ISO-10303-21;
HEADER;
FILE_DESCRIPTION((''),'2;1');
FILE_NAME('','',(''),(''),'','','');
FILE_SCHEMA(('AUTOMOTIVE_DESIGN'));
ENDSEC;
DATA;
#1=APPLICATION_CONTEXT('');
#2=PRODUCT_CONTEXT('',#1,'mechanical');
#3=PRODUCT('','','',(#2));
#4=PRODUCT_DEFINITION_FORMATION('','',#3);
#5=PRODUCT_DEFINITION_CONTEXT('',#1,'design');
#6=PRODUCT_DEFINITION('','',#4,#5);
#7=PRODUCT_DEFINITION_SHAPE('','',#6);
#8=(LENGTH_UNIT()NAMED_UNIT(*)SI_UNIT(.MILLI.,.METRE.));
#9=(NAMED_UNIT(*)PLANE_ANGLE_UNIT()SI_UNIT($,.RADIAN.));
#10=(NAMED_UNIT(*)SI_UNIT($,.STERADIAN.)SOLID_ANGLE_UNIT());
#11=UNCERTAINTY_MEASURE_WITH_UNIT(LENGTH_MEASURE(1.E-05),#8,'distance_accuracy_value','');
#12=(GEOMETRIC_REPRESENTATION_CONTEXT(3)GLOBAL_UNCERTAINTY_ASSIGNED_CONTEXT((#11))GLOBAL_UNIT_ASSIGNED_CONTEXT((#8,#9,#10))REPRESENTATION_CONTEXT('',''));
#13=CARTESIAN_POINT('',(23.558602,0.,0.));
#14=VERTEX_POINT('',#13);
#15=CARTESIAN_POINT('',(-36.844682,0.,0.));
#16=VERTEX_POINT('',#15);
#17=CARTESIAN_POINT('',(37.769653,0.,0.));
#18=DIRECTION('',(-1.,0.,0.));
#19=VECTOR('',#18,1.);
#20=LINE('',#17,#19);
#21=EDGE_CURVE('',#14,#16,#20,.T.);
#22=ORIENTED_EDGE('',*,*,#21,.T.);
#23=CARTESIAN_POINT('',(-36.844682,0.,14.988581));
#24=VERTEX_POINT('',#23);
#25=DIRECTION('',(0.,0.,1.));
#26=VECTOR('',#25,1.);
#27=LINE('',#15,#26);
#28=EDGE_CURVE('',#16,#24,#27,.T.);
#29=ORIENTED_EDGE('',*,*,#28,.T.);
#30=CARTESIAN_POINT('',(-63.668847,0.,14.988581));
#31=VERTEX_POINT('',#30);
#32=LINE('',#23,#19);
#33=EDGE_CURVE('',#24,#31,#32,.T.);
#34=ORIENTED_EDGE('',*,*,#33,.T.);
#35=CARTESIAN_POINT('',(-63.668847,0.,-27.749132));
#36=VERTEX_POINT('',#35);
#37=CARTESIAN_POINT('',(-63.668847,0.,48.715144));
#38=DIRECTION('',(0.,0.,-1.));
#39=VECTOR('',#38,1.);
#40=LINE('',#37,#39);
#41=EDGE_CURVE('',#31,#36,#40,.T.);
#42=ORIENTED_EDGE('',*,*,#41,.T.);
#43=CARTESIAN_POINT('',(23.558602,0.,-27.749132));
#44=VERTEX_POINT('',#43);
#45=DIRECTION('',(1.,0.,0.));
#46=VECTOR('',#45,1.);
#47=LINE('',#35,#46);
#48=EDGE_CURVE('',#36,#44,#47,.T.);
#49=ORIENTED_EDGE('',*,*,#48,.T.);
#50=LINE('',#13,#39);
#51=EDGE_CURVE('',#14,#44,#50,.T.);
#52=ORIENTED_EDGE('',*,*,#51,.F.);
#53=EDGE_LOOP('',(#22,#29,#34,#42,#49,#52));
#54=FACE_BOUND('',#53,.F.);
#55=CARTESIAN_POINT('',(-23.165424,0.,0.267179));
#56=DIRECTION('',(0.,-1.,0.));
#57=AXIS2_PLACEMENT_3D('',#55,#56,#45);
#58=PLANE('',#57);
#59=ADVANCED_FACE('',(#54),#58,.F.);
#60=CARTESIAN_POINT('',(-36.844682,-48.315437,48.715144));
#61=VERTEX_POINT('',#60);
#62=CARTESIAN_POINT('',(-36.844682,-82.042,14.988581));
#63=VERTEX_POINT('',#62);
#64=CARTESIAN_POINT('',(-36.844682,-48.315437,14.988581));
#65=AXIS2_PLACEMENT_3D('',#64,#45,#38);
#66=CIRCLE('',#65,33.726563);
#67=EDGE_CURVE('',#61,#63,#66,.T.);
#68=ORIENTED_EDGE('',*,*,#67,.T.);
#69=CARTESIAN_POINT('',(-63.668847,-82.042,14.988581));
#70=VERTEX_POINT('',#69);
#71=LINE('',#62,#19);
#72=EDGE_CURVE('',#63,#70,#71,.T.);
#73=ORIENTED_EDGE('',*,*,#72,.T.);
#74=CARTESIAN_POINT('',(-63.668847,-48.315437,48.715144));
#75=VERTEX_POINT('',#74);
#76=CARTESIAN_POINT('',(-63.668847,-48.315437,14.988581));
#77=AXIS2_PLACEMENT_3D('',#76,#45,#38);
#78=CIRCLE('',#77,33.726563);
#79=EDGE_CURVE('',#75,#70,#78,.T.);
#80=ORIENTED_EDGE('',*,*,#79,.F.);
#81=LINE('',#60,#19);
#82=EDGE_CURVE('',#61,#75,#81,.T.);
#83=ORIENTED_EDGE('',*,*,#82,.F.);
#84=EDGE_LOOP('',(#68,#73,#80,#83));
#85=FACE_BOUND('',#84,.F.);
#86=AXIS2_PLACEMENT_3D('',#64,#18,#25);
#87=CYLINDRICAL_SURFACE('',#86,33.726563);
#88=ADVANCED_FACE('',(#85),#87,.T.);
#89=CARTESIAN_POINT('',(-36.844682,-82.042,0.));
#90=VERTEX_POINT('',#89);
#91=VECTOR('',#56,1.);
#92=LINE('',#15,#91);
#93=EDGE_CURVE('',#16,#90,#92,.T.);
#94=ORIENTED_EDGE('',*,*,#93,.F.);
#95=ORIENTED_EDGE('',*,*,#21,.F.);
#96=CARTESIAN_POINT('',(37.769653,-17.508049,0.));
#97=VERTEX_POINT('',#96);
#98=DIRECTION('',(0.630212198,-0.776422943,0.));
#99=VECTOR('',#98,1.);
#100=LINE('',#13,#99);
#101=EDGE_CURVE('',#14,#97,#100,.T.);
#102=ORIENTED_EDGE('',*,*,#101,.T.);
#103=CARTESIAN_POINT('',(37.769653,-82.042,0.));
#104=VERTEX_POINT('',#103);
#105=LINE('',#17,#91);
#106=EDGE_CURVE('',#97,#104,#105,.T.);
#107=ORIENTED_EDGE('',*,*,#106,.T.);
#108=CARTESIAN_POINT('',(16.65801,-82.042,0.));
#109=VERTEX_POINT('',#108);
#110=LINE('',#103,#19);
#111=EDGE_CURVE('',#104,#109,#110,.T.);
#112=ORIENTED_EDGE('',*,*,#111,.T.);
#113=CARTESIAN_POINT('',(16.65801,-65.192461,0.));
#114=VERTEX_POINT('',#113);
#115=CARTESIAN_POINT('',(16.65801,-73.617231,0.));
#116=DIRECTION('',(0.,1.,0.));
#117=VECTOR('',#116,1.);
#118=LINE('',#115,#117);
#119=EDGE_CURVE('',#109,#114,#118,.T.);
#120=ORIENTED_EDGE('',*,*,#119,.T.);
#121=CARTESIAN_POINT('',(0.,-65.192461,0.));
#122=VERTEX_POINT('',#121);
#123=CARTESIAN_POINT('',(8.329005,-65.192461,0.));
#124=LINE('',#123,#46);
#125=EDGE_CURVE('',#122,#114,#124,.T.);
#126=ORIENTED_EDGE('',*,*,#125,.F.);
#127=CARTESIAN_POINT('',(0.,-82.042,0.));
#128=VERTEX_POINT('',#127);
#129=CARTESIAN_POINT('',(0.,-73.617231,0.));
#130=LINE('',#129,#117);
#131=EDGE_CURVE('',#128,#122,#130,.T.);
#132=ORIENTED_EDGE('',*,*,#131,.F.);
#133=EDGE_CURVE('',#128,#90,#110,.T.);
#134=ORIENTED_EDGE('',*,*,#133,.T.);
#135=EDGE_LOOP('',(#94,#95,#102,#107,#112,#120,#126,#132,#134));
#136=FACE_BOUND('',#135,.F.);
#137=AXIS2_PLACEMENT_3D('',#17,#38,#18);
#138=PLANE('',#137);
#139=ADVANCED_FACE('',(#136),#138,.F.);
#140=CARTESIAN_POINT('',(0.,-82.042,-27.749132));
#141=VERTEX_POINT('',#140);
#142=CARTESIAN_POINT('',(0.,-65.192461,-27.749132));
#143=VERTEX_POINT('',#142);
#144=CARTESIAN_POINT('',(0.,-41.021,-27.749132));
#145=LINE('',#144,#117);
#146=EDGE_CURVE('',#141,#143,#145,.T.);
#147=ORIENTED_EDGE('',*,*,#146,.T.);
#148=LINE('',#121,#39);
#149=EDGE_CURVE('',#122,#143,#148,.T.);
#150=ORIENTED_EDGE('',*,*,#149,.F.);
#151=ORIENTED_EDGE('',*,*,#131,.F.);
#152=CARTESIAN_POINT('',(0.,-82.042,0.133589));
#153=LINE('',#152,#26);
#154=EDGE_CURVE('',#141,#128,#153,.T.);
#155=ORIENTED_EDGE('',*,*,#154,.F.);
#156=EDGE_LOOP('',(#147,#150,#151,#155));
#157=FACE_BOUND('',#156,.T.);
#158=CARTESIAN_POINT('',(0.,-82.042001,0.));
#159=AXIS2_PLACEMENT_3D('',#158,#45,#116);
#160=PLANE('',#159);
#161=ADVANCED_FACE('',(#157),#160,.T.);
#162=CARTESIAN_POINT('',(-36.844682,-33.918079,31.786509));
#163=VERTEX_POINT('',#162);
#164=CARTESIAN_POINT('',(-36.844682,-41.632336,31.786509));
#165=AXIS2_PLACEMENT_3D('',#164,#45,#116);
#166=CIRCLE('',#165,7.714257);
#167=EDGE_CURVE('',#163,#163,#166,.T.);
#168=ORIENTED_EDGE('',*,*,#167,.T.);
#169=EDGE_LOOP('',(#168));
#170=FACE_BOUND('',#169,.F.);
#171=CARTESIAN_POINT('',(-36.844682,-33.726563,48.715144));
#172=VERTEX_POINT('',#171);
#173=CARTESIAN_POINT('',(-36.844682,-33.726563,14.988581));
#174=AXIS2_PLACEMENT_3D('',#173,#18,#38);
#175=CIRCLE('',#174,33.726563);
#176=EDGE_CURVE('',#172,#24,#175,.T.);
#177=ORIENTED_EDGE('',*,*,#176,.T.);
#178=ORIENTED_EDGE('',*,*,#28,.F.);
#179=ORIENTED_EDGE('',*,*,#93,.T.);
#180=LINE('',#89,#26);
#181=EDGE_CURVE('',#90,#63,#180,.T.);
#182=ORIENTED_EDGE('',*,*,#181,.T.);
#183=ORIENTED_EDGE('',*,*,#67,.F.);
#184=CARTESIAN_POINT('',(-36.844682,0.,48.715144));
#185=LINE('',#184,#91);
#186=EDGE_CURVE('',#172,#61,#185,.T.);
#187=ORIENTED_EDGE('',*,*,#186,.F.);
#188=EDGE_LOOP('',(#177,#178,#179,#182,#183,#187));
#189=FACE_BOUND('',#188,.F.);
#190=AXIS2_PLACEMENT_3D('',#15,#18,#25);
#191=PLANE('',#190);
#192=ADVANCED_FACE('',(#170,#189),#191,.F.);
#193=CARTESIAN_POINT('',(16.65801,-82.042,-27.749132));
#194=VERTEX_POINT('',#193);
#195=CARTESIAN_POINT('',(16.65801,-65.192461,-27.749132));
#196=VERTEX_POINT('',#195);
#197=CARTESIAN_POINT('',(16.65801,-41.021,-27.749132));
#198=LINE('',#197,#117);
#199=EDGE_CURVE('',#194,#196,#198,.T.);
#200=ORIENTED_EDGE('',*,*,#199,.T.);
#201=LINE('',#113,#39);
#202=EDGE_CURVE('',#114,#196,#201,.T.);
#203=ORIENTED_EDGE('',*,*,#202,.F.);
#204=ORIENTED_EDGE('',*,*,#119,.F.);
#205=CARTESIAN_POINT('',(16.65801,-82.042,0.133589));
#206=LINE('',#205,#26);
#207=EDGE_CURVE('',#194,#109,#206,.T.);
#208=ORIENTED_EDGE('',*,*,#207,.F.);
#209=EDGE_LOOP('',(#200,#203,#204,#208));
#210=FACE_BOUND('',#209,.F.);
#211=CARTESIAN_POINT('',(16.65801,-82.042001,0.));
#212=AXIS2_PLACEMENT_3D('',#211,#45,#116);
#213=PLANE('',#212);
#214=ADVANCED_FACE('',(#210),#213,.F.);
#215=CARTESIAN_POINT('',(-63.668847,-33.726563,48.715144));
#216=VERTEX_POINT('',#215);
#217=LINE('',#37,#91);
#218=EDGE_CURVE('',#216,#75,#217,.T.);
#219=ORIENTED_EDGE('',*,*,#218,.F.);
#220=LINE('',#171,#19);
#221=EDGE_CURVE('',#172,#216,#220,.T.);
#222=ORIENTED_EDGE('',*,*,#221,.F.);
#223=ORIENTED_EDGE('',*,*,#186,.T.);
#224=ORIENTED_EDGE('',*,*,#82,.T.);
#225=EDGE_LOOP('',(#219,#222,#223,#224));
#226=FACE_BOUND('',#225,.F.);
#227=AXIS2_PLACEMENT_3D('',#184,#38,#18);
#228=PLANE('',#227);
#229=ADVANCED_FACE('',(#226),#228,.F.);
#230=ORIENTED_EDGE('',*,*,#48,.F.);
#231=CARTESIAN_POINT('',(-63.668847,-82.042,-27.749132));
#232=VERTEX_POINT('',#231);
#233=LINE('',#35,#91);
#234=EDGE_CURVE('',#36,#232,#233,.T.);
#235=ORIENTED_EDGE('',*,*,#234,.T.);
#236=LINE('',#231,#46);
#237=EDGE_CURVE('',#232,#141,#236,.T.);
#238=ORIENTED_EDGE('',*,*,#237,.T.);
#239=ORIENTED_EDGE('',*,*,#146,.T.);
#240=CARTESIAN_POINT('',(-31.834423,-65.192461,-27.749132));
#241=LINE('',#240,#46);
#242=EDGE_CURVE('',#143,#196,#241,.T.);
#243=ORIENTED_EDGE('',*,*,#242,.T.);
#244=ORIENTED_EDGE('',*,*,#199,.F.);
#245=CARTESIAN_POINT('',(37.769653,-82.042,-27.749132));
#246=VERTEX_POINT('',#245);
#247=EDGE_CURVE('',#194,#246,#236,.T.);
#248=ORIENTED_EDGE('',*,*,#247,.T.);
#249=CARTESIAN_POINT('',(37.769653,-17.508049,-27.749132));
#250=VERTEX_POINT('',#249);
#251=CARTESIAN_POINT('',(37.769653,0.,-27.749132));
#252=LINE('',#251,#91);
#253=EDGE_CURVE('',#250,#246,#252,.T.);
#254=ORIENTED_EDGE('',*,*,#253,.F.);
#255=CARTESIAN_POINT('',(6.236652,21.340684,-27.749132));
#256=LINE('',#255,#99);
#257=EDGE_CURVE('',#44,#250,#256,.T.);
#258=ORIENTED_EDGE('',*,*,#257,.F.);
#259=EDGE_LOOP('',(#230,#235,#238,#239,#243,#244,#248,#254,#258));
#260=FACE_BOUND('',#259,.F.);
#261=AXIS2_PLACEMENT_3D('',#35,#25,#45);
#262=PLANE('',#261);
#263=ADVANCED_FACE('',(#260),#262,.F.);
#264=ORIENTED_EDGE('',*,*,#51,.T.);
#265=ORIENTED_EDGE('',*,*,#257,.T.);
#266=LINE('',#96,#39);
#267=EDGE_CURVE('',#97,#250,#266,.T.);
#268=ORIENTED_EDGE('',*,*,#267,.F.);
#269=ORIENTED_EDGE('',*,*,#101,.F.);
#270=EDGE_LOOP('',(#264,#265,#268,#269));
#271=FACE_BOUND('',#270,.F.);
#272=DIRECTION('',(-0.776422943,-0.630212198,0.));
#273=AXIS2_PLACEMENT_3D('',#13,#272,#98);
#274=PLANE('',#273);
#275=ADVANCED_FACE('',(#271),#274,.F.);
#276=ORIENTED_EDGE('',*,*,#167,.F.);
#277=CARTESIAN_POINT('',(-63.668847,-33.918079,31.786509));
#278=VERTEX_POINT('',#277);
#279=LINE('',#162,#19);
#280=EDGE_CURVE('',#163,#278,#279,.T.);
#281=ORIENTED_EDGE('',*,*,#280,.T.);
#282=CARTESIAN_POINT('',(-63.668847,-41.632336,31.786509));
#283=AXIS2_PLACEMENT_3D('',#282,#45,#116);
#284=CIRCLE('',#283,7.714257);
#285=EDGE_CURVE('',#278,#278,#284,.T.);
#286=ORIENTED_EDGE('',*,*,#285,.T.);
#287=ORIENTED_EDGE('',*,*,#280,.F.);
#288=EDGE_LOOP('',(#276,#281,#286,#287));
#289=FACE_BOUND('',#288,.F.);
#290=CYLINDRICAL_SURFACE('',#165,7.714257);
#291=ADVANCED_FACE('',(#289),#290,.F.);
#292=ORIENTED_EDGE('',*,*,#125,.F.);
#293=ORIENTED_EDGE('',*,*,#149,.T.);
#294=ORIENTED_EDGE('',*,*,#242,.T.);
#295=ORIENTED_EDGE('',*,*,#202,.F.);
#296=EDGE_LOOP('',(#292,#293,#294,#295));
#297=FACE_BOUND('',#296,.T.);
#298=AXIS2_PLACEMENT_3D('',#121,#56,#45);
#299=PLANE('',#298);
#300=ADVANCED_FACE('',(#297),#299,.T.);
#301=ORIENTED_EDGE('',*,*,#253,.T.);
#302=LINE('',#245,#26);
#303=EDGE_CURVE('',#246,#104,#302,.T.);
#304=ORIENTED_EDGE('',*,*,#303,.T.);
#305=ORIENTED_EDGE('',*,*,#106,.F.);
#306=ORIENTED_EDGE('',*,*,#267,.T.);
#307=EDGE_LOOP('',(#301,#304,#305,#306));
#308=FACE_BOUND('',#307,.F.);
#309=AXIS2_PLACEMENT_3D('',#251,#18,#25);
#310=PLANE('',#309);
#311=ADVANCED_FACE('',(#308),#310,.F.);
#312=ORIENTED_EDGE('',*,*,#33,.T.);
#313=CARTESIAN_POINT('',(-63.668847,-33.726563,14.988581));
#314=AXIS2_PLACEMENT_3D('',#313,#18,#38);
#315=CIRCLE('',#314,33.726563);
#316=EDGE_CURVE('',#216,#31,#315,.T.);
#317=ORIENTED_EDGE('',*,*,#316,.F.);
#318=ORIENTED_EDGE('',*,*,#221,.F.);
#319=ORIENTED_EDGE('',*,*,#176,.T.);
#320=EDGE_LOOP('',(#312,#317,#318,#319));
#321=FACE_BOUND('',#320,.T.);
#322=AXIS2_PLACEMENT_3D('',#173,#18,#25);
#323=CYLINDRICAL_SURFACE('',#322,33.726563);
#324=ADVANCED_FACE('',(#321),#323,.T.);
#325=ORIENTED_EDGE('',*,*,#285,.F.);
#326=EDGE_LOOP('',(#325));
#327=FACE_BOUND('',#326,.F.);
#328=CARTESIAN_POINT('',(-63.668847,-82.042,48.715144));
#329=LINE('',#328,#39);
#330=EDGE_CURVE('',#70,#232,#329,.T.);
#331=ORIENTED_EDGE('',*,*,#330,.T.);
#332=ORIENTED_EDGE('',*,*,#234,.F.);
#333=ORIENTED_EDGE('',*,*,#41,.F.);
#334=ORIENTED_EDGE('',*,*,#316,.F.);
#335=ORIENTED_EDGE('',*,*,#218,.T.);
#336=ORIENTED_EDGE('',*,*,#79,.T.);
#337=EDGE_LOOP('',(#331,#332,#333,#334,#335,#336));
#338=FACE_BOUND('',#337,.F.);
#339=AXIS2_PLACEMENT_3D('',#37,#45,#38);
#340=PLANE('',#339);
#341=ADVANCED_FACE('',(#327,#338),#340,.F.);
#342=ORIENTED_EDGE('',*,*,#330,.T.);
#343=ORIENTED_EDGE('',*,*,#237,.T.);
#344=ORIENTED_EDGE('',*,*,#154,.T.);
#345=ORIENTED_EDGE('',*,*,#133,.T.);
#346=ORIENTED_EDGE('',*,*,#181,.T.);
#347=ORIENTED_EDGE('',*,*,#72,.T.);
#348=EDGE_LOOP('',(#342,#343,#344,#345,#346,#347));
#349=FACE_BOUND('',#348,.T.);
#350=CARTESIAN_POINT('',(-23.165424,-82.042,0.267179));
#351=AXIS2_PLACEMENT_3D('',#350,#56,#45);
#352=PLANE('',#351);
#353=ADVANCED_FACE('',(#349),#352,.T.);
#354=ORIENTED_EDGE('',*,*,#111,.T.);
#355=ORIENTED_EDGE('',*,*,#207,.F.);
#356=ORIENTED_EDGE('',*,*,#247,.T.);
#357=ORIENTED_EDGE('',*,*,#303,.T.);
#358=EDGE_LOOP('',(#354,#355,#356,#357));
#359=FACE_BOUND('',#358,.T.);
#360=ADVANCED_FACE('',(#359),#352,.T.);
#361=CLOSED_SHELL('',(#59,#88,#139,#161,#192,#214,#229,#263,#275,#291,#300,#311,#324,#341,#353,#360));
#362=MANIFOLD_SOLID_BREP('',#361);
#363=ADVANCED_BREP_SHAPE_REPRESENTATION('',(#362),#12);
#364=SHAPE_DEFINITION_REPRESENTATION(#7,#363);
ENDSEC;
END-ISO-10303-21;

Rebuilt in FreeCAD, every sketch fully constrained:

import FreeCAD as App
import Part
import Sketcher
from FreeCAD import Vector
Q = App.Units.Quantity


def edges_at(feature, points):
    """Names of the edges that pass closest to the given points."""
    edges = feature.Shape.Edges
    near = lambda p: min(range(len(edges)), key=lambda i: edges[i].distToShape(Part.Vertex(*p))[0])
    return sorted({f"Edge{near(p) + 1}" for p in points})

doc = App.newDocument("Part")
body = doc.addObject("PartDesign::Body", "Body")

sketch1 = body.newObject("Sketcher::SketchObject", "Sketch")
sketch1.AttachmentSupport = (doc.getObject("XZ_Plane"), [""])
sketch1.MapMode = "FlatFace"
sketch1.addGeometry([
    Part.LineSegment(Vector(38, -28, 0), Vector(38, 0, 0)),
    Part.LineSegment(Vector(38, 0, 0), Vector(-37, 0, 0)),
    Part.LineSegment(Vector(-37, 0, 0), Vector(-37, 49, 0)),
    Part.LineSegment(Vector(-37, 49, 0), Vector(-64, 49, 0)),
    Part.LineSegment(Vector(-64, 49, 0), Vector(-64, -28, 0)),
    Part.LineSegment(Vector(-64, -28, 0), Vector(38, -28, 0)),
], False)
sketch1.addConstraint([
    Sketcher.Constraint("Coincident", 0, 2, 1, 1),
    Sketcher.Constraint("Coincident", 1, 2, 2, 1),
    Sketcher.Constraint("Coincident", 2, 2, 3, 1),
    Sketcher.Constraint("Coincident", 3, 2, 4, 1),
    Sketcher.Constraint("Coincident", 4, 2, 5, 1),
    Sketcher.Constraint("Coincident", 5, 2, 0, 1),
    Sketcher.Constraint("Vertical", 0),
    Sketcher.Constraint("Horizontal", 1),
    Sketcher.Constraint("Vertical", 2),
    Sketcher.Constraint("Horizontal", 3),
    Sketcher.Constraint("Vertical", 4),
    Sketcher.Constraint("Horizontal", 5),
    Sketcher.Constraint("PointOnObject", 0, 2, -1),
    Sketcher.Constraint("DistanceX", 5, 1, 5, 2, 101.4385),
    Sketcher.Constraint("DistanceY", 0, 1, 0, 2, 27.749132),
    Sketcher.Constraint("DistanceX", 1, 2, 1, 1, 74.614335),
    Sketcher.Constraint("DistanceY", 2, 1, 2, 2, 48.715144),
    Sketcher.Constraint("DistanceX", -1, 1, 0, 2, 37.769653),
])
pad1 = body.newObject("PartDesign::Pad", "Pad")
pad1.Profile = sketch1
pad1.Length = Q("3.23 in")
doc.recompute()

fillet = body.newObject("PartDesign::Fillet", "Fillet")
fillet.Base = (pad1, edges_at(pad1, [(-50.257, 0, 48.715), (-50.257, -82.042, 48.715)]))
fillet.Radius = 33.726563

sketch2 = body.newObject("Sketcher::SketchObject", "Sketch001")
sketch2.AttachmentSupport = (doc.getObject("XY_Plane"), [""])
sketch2.MapMode = "FlatFace"
sketch2.addGeometry([
    Part.LineSegment(Vector(0, -65, 0), Vector(0, -82, 0)),
    Part.LineSegment(Vector(0, -82, 0), Vector(17, -82, 0)),
    Part.LineSegment(Vector(17, -82, 0), Vector(17, -65, 0)),
    Part.LineSegment(Vector(17, -65, 0), Vector(0, -65, 0)),
], False)
sketch2.addConstraint([
    Sketcher.Constraint("Coincident", 0, 2, 1, 1),
    Sketcher.Constraint("Coincident", 1, 2, 2, 1),
    Sketcher.Constraint("Coincident", 2, 2, 3, 1),
    Sketcher.Constraint("Coincident", 3, 2, 0, 1),
    Sketcher.Constraint("Vertical", 0),
    Sketcher.Constraint("Horizontal", 1),
    Sketcher.Constraint("Vertical", 2),
    Sketcher.Constraint("Horizontal", 3),
    Sketcher.Constraint("PointOnObject", 0, 2, -2),
    Sketcher.Constraint("DistanceY", 0, 2, -1, 1, Q("3.23 in")),
    Sketcher.Constraint("DistanceX", 1, 1, 1, 2, 16.65801),
    Sketcher.Constraint("DistanceY", 0, 2, 0, 1, 16.849539),
])
pocket1 = body.newObject("PartDesign::Pocket", "Pocket")
pocket1.Profile = sketch2
pocket1.Type = "ThroughAll"

sketch3 = body.newObject("Sketcher::SketchObject", "Sketch002")
sketch3.AttachmentSupport = (doc.getObject("XY_Plane"), [""])
sketch3.MapMode = "FlatFace"
sketch3.addGeometry([
    Part.LineSegment(Vector(38, 0, 0), Vector(24, 0, 0)),
    Part.LineSegment(Vector(24, 0, 0), Vector(38, -18, 0)),
    Part.LineSegment(Vector(38, -18, 0), Vector(38, 0, 0)),
], False)
sketch3.addConstraint([
    Sketcher.Constraint("Coincident", 0, 2, 1, 1),
    Sketcher.Constraint("Coincident", 1, 2, 2, 1),
    Sketcher.Constraint("Coincident", 2, 2, 0, 1),
    Sketcher.Constraint("Horizontal", 0),
    Sketcher.Constraint("Vertical", 2),
    Sketcher.Constraint("PointOnObject", 0, 2, -1),
    Sketcher.Constraint("DistanceX", 0, 2, 0, 1, 14.211051),
    Sketcher.Constraint("DistanceY", 2, 1, 2, 2, 17.508049),
    Sketcher.Constraint("DistanceX", -1, 1, 0, 2, 23.558602),
])
pocket2 = body.newObject("PartDesign::Pocket", "Pocket001")
pocket2.Profile = sketch3
pocket2.Type = "ThroughAll"

sketch4 = body.newObject("Sketcher::SketchObject", "Sketch003")
sketch4.AttachmentSupport = (doc.getObject("YZ_Plane"), [""])
sketch4.MapMode = "FlatFace"
sketch4.AttachmentOffset = App.Placement(Vector(0, 0, -36.844682), App.Rotation())
sketch4.addGeometry(Part.Circle(Vector(-42, 32, 0), Vector(0, 0, 1), 8), False)
sketch4.addConstraint([
    Sketcher.Constraint("Diameter", 0, 15.428514),
    Sketcher.Constraint("DistanceY", -1, 1, 0, 3, 31.786509),
    Sketcher.Constraint("DistanceX", 0, 3, -1, 1, 41.632336),
])
pocket3 = body.newObject("PartDesign::Pocket", "Pocket002")
pocket3.Profile = sketch4
pocket3.Type = "ThroughAll"

doc.recompute()
